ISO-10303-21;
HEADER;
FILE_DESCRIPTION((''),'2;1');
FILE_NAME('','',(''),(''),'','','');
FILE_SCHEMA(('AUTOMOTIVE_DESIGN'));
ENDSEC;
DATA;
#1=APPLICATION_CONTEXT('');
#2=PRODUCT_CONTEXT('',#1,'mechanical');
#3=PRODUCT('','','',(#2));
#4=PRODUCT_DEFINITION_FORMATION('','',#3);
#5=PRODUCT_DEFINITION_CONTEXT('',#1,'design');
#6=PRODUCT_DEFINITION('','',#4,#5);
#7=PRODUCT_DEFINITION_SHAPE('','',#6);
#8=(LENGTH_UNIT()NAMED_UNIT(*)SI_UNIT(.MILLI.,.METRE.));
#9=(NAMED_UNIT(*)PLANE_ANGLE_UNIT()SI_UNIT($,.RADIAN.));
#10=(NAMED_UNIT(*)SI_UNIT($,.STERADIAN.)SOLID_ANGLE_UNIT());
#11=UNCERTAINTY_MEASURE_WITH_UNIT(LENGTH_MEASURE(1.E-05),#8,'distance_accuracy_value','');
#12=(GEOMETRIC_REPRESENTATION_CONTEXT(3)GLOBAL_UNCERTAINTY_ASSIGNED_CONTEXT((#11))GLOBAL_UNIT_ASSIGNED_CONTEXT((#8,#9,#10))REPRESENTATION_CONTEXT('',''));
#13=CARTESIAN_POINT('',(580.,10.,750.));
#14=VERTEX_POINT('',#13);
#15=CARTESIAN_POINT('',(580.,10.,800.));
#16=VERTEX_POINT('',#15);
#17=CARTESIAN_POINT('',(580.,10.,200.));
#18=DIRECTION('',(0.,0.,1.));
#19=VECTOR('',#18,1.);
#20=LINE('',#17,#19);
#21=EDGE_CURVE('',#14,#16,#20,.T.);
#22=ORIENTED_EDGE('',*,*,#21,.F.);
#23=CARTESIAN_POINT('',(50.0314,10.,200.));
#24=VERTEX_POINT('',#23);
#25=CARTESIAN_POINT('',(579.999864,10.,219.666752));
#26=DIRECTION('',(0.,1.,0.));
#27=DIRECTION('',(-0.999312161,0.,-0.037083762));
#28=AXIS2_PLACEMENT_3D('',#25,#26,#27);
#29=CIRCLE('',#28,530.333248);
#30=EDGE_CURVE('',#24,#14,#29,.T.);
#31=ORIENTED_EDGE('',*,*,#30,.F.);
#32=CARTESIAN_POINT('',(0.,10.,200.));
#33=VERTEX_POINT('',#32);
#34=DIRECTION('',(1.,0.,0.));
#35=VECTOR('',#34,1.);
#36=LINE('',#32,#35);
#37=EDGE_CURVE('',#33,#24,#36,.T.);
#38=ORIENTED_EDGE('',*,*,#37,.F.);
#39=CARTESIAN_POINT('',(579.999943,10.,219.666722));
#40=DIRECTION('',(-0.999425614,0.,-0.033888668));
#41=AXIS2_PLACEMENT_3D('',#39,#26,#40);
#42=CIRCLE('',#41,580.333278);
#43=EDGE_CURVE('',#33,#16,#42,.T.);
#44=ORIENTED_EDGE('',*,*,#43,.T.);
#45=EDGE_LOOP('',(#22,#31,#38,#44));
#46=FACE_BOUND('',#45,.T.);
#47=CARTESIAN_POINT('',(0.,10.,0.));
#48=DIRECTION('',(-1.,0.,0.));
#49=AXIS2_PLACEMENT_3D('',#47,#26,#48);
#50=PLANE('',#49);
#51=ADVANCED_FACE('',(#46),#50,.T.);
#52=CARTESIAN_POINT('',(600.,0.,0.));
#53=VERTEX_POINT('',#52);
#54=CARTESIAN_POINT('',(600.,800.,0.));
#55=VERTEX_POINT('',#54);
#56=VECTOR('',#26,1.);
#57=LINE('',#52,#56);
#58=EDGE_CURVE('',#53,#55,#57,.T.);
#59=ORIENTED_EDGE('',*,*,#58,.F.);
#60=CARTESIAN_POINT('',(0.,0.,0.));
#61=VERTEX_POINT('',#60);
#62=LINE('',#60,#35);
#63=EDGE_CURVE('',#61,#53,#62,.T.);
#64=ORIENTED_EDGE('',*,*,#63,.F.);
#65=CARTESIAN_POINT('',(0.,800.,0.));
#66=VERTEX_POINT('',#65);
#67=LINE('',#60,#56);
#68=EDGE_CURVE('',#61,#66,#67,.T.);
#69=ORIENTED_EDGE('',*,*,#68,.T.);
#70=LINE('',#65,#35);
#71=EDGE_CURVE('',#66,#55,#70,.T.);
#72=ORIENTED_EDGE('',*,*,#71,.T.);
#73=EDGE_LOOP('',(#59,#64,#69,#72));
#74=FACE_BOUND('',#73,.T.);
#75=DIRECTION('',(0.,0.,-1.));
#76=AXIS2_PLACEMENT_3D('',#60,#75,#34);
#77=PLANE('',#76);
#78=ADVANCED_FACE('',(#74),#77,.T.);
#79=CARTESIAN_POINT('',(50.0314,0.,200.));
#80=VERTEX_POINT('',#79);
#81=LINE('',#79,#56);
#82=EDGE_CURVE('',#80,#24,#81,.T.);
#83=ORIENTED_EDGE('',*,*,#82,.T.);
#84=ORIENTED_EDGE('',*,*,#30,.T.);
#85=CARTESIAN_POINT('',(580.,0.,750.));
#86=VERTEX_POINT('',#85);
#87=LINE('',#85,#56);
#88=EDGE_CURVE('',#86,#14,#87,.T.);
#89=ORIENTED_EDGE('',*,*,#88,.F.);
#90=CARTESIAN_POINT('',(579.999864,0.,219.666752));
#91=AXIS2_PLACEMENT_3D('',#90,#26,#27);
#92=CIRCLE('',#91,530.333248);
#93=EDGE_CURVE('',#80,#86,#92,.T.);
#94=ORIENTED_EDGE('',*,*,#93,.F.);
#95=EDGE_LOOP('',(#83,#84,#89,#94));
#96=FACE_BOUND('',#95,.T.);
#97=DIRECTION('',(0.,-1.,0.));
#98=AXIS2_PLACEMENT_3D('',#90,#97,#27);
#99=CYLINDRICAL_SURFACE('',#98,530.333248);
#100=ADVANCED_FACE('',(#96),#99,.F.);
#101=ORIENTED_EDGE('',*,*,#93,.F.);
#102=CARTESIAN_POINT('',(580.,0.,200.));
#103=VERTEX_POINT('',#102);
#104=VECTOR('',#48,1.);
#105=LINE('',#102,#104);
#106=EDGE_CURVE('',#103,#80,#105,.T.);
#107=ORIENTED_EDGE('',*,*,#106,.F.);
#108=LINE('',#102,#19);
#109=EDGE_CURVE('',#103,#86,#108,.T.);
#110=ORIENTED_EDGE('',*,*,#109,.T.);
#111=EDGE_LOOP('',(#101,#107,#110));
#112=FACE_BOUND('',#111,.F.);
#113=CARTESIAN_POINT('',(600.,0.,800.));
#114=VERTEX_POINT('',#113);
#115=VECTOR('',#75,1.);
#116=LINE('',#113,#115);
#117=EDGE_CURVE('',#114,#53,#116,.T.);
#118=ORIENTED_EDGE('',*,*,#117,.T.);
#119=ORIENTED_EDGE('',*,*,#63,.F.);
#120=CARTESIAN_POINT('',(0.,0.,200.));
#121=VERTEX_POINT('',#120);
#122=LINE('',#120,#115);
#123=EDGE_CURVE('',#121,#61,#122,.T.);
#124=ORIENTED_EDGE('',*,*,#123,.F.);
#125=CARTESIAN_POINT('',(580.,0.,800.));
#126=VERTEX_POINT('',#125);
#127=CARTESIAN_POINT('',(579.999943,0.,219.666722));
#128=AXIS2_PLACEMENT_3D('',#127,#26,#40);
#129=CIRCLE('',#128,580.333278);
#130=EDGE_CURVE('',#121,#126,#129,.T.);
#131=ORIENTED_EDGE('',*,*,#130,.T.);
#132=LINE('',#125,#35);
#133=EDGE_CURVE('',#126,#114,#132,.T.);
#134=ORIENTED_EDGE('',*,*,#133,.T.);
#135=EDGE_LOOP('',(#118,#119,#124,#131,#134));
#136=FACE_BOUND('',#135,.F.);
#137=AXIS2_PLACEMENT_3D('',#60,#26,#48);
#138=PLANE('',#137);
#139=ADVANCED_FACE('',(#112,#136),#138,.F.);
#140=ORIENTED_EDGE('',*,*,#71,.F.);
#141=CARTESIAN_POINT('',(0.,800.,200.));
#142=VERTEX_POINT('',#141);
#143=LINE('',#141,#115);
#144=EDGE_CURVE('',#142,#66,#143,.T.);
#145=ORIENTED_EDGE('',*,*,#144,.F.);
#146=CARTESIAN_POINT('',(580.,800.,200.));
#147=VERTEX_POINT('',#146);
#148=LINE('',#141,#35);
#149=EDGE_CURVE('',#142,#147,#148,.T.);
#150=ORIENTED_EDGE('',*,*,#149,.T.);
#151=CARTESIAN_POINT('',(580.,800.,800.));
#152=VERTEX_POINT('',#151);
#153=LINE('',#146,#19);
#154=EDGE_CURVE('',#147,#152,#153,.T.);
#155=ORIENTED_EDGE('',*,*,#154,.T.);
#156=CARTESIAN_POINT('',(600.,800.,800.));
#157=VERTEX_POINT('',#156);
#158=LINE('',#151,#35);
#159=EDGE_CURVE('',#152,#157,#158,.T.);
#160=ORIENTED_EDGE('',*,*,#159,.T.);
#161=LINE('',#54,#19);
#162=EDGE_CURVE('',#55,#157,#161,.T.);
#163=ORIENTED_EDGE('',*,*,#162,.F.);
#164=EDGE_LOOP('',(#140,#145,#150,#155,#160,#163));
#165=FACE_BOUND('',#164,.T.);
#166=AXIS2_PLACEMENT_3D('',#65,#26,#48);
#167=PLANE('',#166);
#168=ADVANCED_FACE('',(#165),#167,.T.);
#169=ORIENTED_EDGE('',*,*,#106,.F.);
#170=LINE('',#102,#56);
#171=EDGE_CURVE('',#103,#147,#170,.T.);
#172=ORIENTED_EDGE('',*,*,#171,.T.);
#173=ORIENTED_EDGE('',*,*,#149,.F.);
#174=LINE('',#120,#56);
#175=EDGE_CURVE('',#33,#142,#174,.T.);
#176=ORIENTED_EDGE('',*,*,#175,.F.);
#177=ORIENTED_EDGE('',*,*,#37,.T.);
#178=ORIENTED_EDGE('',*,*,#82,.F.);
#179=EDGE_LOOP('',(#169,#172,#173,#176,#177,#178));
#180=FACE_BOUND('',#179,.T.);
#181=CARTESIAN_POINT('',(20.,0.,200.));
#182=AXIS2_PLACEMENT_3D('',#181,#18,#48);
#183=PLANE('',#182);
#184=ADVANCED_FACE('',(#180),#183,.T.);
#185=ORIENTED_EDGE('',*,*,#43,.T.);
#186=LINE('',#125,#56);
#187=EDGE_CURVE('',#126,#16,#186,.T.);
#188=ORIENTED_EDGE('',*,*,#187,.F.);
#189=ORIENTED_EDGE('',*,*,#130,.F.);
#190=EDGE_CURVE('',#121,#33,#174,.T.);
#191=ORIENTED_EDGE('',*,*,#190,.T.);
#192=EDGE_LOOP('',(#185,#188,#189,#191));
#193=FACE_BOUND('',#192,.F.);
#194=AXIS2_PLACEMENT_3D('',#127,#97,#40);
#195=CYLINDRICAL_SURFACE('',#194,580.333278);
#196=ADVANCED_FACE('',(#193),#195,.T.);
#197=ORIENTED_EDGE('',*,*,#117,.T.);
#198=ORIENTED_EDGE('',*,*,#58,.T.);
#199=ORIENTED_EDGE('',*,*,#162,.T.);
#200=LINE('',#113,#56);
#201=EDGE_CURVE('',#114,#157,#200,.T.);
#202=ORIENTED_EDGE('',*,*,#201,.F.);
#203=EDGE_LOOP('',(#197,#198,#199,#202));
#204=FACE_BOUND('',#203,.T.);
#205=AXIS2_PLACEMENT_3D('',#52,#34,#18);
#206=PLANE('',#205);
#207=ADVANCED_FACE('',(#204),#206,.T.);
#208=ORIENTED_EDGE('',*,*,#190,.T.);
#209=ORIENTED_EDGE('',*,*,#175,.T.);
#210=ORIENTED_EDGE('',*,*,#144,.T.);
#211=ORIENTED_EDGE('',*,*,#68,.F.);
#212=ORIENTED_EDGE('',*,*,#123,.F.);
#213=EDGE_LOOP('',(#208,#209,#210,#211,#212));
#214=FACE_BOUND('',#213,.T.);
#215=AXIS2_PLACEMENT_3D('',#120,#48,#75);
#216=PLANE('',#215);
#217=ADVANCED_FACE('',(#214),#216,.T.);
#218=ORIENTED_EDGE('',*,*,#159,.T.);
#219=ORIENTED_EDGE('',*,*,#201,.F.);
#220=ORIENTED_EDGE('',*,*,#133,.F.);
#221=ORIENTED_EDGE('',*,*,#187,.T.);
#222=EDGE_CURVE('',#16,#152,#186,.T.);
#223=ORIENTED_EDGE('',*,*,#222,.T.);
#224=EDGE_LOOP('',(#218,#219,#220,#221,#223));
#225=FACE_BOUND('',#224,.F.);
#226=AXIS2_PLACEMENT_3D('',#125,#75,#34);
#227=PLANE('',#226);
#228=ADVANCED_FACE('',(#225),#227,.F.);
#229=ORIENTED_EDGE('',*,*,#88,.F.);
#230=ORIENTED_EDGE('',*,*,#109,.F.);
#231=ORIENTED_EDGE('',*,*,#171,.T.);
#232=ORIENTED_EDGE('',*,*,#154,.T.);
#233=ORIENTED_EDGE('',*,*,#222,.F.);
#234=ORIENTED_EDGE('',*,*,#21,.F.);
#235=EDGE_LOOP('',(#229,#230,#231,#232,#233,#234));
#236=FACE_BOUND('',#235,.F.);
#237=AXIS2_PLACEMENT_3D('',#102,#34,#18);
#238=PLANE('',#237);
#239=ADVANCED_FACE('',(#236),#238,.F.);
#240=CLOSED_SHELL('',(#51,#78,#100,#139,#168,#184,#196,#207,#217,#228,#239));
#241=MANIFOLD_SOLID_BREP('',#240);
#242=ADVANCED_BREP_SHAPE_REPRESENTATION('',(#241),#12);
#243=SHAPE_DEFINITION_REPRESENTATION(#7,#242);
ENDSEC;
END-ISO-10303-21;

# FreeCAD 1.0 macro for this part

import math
import FreeCAD as App
import Part
import Sketcher

V = App.Vector

doc = App.newDocument("Part")
body = doc.addObject("PartDesign::Body", "Body")

# Sketch on XZ plane
sketch1 = doc.addObject("Sketcher::SketchObject", "Sketch")
body.addObject(sketch1)
sketch1.AttachmentSupport = (doc.XZ_Plane, [""])
sketch1.MapMode = "FlatFace"
sketch1.addGeometry([
    Part.LineSegment(V(600, 0, 0), V(0, 0, 0)),  # 0
    Part.LineSegment(V(0, 0, 0), V(0, 200, 0)),  # 1
    Part.LineSegment(V(0, 200, 0), V(580, 200, 0)),  # 2
    Part.LineSegment(V(580, 200, 0), V(580, 800, 0)),  # 3
    Part.LineSegment(V(580, 800, 0), V(600, 800, 0)),  # 4
    Part.LineSegment(V(600, 800, 0), V(600, 0, 0)),  # 5
], False)
sketch1.addConstraint([
    Sketcher.Constraint("Coincident", 0, 2, 1, 1),
    Sketcher.Constraint("Coincident", 1, 2, 2, 1),
    Sketcher.Constraint("Coincident", 2, 2, 3, 1),
    Sketcher.Constraint("Coincident", 3, 2, 4, 1),
    Sketcher.Constraint("Coincident", 4, 2, 5, 1),
    Sketcher.Constraint("Coincident", 5, 2, 0, 1),
    Sketcher.Constraint("Horizontal", 0),
    Sketcher.Constraint("Vertical", 1),
    Sketcher.Constraint("Horizontal", 2),
    Sketcher.Constraint("Vertical", 3),
    Sketcher.Constraint("Horizontal", 4),
    Sketcher.Constraint("Vertical", 5),
    Sketcher.Constraint("Coincident", 0, 2, -1, 1),
    Sketcher.Constraint("Equal", 0, 3),
    Sketcher.Constraint("DistanceX", 0, 2, 0, 1, 600.0),
    Sketcher.Constraint("DistanceX", 4, 1, 4, 2, 20.0),
    Sketcher.Constraint("DistanceY", 1, 1, 1, 2, 200.0),
])
pad1 = doc.addObject("PartDesign::Pad", "Pad")
body.addObject(pad1)
pad1.Profile = sketch1
pad1.Length = 800
pad1.Reversed = True

# Sketch on XZ plane
sketch2 = doc.addObject("Sketcher::SketchObject", "Sketch001")
body.addObject(sketch2)
sketch2.AttachmentSupport = (doc.XZ_Plane, [""])
sketch2.MapMode = "FlatFace"
sketch2.addGeometry([
    Part.LineSegment(V(50, 200, 0), V(0, 200, 0)),
    Part.ArcOfCircle(Part.Circle(V(580, 220, 0), V(0, 0, 1), 580), math.radians(90), math.radians(182)),
    Part.LineSegment(V(580, 800, 0), V(580, 750, 0)),
    Part.ArcOfCircle(Part.Circle(V(580, 220, 0), V(0, 0, 1), 530), math.radians(90), math.radians(182)),
], False)
sketch2.addConstraint([
    Sketcher.Constraint("Coincident", 0, 2, 1, 2),
    Sketcher.Constraint("Coincident", 1, 1, 2, 1),
    Sketcher.Constraint("Coincident", 2, 2, 3, 1),
    Sketcher.Constraint("Coincident", 3, 2, 0, 1),
    Sketcher.Constraint("Horizontal", 0),
    Sketcher.Constraint("Vertical", 2),
    Sketcher.Constraint("Coincident", 3, 3, 1, 3),
    Sketcher.Constraint("PointOnObject", 0, 2, -2),
    Sketcher.Constraint("DistanceY", 2, 2, 2, 1, 50.0),
    Sketcher.Constraint("DistanceX", -1, 1, 1, 3, 580.0),
    Sketcher.Constraint("DistanceY", -1, 1, 0, 2, 200.0),
    Sketcher.Constraint("DistanceY", -1, 1, 1, 1, 800.0),
    Sketcher.Constraint("DistanceX", -1, 1, 2, 2, 580.0),
])
pad2 = doc.addObject("PartDesign::Pad", "Pad001")
body.addObject(pad2)
pad2.Profile = sketch2
pad2.Length = 10
pad2.Reversed = True

doc.recompute()
